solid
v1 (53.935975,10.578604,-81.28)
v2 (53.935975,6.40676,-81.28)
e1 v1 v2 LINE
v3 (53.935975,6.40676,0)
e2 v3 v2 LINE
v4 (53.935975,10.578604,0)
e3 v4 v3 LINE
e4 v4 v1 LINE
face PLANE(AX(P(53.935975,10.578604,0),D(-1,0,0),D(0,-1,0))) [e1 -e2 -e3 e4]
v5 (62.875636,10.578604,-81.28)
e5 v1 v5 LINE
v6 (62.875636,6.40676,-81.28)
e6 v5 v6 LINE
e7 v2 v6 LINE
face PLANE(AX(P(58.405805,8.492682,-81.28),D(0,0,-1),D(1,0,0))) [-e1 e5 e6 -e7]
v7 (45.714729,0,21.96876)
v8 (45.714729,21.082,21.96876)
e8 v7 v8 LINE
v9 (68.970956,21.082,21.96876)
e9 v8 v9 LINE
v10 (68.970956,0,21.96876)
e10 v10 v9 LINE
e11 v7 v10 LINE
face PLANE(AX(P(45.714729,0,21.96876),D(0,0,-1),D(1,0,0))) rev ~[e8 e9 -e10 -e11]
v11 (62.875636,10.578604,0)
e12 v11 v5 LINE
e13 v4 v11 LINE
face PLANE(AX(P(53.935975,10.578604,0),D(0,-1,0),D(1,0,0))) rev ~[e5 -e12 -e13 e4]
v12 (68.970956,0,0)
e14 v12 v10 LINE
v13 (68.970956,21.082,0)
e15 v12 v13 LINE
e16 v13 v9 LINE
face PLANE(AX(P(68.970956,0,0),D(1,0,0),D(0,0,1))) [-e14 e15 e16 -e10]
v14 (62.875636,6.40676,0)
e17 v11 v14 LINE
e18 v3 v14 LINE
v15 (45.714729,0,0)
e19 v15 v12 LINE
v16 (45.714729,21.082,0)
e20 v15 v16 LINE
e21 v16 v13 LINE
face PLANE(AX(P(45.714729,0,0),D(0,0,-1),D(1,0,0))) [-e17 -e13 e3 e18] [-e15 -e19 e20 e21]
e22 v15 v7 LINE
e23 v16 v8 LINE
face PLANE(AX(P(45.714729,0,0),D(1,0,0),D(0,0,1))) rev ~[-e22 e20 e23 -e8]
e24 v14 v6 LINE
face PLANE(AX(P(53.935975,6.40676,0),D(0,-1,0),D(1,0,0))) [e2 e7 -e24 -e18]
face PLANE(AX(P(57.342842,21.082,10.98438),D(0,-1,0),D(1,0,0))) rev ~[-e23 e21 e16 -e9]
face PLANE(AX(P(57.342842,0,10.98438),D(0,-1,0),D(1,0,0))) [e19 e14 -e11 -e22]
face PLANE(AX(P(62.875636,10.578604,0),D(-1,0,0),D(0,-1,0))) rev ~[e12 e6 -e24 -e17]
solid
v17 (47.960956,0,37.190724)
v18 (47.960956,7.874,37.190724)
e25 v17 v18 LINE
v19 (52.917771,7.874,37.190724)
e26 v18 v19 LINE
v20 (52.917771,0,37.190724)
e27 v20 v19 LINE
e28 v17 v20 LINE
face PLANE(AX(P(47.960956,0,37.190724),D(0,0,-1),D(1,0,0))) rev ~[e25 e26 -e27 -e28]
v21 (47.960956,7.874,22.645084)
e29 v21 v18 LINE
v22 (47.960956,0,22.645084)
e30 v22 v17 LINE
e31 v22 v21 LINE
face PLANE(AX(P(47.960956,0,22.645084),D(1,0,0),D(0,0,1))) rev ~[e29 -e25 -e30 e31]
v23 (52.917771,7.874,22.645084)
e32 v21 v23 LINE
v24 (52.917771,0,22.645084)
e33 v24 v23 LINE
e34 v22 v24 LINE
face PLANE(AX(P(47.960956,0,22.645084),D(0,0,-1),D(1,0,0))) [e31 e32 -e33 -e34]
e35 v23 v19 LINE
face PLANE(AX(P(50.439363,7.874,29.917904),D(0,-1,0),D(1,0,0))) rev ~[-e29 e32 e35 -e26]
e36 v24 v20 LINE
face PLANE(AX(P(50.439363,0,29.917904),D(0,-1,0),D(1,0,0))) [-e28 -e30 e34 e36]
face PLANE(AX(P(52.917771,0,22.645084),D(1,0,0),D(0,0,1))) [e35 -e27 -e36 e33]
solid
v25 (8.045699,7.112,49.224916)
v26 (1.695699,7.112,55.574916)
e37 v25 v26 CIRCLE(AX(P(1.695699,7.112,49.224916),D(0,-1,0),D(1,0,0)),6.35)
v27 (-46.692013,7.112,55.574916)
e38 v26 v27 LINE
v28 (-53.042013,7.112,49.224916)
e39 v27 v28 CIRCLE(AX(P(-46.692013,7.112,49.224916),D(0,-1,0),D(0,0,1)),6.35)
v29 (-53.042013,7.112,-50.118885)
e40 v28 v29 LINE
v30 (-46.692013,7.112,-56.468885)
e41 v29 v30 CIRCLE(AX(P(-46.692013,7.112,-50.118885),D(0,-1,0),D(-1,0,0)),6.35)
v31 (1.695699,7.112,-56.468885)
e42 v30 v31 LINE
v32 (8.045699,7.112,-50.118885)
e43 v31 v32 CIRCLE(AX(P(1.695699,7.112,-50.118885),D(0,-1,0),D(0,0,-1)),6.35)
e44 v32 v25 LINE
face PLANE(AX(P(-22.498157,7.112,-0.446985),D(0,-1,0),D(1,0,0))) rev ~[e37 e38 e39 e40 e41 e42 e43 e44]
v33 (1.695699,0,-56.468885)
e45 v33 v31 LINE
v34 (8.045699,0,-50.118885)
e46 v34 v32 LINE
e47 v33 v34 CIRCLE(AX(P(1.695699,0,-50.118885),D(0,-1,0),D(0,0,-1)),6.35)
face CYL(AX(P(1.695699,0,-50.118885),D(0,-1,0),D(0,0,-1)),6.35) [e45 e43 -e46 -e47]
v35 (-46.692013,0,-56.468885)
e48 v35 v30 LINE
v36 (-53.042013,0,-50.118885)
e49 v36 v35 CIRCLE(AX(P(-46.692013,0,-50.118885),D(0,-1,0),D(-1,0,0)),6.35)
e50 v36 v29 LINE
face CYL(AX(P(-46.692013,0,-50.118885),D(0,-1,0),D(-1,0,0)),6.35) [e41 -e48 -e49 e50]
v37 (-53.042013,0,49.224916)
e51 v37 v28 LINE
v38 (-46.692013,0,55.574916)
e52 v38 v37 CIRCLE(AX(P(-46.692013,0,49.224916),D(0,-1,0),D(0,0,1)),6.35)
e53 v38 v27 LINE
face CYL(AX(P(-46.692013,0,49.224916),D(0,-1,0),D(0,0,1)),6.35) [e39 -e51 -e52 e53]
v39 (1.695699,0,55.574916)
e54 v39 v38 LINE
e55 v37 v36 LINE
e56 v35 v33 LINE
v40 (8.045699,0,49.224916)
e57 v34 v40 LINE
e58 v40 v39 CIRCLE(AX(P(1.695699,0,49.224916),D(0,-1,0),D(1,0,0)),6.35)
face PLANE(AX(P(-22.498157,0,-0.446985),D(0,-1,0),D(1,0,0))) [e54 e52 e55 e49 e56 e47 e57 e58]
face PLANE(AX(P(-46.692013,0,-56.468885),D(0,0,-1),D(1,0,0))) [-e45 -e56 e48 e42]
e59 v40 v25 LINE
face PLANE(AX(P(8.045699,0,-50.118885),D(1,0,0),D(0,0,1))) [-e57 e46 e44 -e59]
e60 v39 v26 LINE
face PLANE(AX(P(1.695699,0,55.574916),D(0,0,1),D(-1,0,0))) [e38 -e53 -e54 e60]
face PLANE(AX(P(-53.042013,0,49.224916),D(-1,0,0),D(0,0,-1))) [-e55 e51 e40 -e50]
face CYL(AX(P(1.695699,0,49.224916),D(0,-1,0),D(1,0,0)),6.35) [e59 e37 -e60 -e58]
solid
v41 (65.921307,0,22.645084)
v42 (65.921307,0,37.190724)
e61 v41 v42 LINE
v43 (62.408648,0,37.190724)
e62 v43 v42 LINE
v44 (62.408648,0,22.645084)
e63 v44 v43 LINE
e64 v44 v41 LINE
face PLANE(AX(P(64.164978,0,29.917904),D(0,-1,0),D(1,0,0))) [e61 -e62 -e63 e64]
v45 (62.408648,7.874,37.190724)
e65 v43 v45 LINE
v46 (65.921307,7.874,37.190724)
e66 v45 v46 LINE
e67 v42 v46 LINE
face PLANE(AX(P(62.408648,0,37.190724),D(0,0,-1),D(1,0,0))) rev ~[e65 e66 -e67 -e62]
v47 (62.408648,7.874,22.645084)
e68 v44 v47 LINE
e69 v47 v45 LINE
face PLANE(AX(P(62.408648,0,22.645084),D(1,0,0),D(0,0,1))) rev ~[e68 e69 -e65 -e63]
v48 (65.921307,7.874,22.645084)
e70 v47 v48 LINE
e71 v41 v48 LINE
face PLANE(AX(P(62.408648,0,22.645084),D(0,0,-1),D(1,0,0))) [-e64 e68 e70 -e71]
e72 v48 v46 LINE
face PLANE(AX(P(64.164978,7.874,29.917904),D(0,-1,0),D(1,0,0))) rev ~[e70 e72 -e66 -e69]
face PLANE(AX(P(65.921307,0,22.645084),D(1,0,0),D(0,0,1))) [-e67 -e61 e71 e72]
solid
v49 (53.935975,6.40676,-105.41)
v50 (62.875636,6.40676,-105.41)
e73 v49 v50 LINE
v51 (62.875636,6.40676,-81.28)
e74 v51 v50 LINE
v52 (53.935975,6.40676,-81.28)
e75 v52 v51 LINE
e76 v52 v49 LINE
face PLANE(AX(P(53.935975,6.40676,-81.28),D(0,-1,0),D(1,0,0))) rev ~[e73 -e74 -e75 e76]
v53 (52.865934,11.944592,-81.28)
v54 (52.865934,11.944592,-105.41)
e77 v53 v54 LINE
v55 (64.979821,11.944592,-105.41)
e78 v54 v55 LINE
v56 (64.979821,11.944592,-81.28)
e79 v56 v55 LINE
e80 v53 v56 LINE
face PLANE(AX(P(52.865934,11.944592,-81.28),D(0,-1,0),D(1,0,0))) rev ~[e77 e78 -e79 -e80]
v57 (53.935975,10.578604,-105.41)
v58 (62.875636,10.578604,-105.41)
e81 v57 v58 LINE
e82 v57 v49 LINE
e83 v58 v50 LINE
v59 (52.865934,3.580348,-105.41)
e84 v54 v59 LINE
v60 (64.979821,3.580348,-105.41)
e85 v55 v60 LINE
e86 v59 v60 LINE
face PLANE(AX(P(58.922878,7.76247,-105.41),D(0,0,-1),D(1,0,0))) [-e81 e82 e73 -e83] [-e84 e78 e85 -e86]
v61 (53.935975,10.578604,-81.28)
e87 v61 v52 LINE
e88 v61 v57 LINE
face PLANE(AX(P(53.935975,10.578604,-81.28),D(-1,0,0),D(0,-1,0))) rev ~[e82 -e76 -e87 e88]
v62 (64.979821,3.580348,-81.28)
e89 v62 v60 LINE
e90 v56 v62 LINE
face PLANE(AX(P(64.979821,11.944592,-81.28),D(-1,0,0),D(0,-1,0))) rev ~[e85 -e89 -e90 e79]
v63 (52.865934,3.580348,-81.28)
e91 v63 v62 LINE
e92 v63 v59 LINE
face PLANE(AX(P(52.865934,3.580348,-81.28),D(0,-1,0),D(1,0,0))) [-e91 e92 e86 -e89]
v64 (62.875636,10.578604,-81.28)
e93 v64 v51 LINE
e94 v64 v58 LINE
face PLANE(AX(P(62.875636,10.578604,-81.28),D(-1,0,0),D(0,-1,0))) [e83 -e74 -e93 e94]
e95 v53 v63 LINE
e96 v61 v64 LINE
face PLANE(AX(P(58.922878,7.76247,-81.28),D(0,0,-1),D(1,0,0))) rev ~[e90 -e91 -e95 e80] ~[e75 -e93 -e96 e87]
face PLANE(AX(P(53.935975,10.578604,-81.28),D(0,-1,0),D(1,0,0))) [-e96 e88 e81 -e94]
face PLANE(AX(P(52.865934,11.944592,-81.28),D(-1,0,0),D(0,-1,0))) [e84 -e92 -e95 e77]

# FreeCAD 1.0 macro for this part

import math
import FreeCAD as App
import Part
import Sketcher
from FreeCAD import Vector
Q = App.Units.Quantity


def add_polygon(sketch, points):
    """Adds a closed chain of lines whose ends are joined by coincident constraints."""
    first, n = sketch.GeometryCount, len(points)
    for a, b in zip(points, points[1:] + points[:1]):
        sketch.addGeometry(Part.LineSegment(App.Vector(*a, 0), App.Vector(*b, 0)), False)
    for i in range(n):
        sketch.addConstraint(Sketcher.Constraint("Coincident", first + i, 2, first + (i + 1) % n, 1))

doc = App.newDocument("Part")
body = doc.addObject("PartDesign::Body", "Body")

# Sketch on XZ plane
sketch1 = doc.addObject("Sketcher::SketchObject", "Sketch")
body.addObject(sketch1)
sketch1.AttachmentSupport = (doc.XZ_Plane, [""])
sketch1.MapMode = "FlatFace"
sketch1.addGeometry([
    Part.ArcOfCircle(Part.Circle(Vector(-47, 49, 0), Vector(0, 0, 1), 6), math.radians(90), math.radians(180)),  # 0
    Part.LineSegment(Vector(-53, 49, 0), Vector(-53, -50, 0)),  # 1
    Part.ArcOfCircle(Part.Circle(Vector(-47, -50, 0), Vector(0, 0, 1), 6), math.radians(180), math.radians(270)),  # 2
    Part.LineSegment(Vector(-47, -56, 0), Vector(2, -56, 0)),  # 3
    Part.ArcOfCircle(Part.Circle(Vector(2, -50, 0), Vector(0, 0, 1), 6), math.radians(-90), math.radians(0)),  # 4
    Part.LineSegment(Vector(8, -50, 0), Vector(8, 49, 0)),  # 5
    Part.ArcOfCircle(Part.Circle(Vector(2, 49, 0), Vector(0, 0, 1), 6), math.radians(0), math.radians(90)),  # 6
    Part.LineSegment(Vector(2, 56, 0), Vector(-47, 56, 0)),  # 7
], False)
sketch1.addConstraint([
    Sketcher.Constraint("Tangent", 0, 2, 1, 1),
    Sketcher.Constraint("Tangent", 1, 2, 2, 1),
    Sketcher.Constraint("Tangent", 2, 2, 3, 1),
    Sketcher.Constraint("Tangent", 3, 2, 4, 1),
    Sketcher.Constraint("Tangent", 4, 2, 5, 1),
    Sketcher.Constraint("Tangent", 5, 2, 6, 1),
    Sketcher.Constraint("Tangent", 6, 2, 7, 1),
    Sketcher.Constraint("Tangent", 7, 2, 0, 1),
    Sketcher.Constraint("Vertical", 1),
    Sketcher.Constraint("Horizontal", 3),
    Sketcher.Constraint("Vertical", 5),
    Sketcher.Constraint("Horizontal", 7),
    Sketcher.Constraint("Equal", 0, 2),
    Sketcher.Constraint("Equal", 2, 4),
    Sketcher.Constraint("Equal", 4, 6),
    Sketcher.Constraint("Radius", 0, Q("0.25 in")),
    Sketcher.Constraint("DistanceY", 1, 2, 1, 1, 99.343802),
    Sketcher.Constraint("DistanceX", 3, 1, 3, 2, 48.387712),
    Sketcher.Constraint("DistanceX", -1, 1, 4, 3, 1.695699),
    Sketcher.Constraint("DistanceY", -1, 1, 0, 3, 49.224916),
])
pad1 = doc.addObject("PartDesign::Pad", "Pad")
body.addObject(pad1)
pad1.Profile = sketch1
pad1.Length = Q("0.28 in")
pad1.Reversed = True
body2 = doc.addObject("PartDesign::Body", "Body001")

# Sketch on XZ plane
sketch2 = doc.addObject("Sketcher::SketchObject", "Sketch001")
body2.addObject(sketch2)
sketch2.AttachmentSupport = (doc.getObject("XZ_Plane001"), [""])
sketch2.MapMode = "FlatFace"
add_polygon(sketch2, [(46, 22), (46, 0), (69, 0), (69, 22)])  # lines 0-3
sketch2.addConstraint([
    Sketcher.Constraint("Vertical", 0),
    Sketcher.Constraint("Horizontal", 1),
    Sketcher.Constraint("Vertical", 2),
    Sketcher.Constraint("Horizontal", 3),
    Sketcher.Constraint("PointOnObject", 0, 2, -1),
    Sketcher.Constraint("DistanceY", 0, 2, 0, 1, 21.96876),
    Sketcher.Constraint("DistanceX", 1, 1, 1, 2, 23.256227),
    Sketcher.Constraint("DistanceX", -1, 1, 0, 2, 45.714729),
])
pad2 = doc.addObject("PartDesign::Pad", "Pad001")
body2.addObject(pad2)
pad2.Profile = sketch2
pad2.Length = Q("0.83 in")
pad2.Reversed = True

# Sketch on XY plane
sketch3 = doc.addObject("Sketcher::SketchObject", "Sketch002")
body2.addObject(sketch3)
sketch3.AttachmentSupport = (doc.getObject("XY_Plane001"), [""])
sketch3.MapMode = "FlatFace"
add_polygon(sketch3, [(53.9, 6.4), (53.9, 10.6), (62.9, 10.6), (62.9, 6.4)])  # lines 0-3
sketch3.addConstraint([
    Sketcher.Constraint("Vertical", 0),
    Sketcher.Constraint("Horizontal", 1),
    Sketcher.Constraint("Vertical", 2),
    Sketcher.Constraint("Horizontal", 3),
    Sketcher.Constraint("DistanceX", 1, 1, 1, 2, 8.939661),
    Sketcher.Constraint("DistanceY", 0, 1, 0, 2, 4.171845),
    Sketcher.Constraint("DistanceY", -1, 1, 2, 2, 6.40676),
    Sketcher.Constraint("DistanceX", -1, 1, 0, 2, 53.935975),
])
pad3 = doc.addObject("PartDesign::Pad", "Pad002")
body2.addObject(pad3)
pad3.Profile = sketch3
pad3.Length = Q("3.2 in")
pad3.Reversed = True
body3 = doc.addObject("PartDesign::Body", "Body002")

# Sketch on XZ plane
sketch4 = doc.addObject("Sketcher::SketchObject", "Sketch003")
body3.addObject(sketch4)
sketch4.AttachmentSupport = (doc.getObject("XZ_Plane002"), [""])
sketch4.MapMode = "FlatFace"
add_polygon(sketch4, [(48, 37.2), (48, 22.6), (52.9, 22.6), (52.9, 37.2)])  # lines 0-3
sketch4.addConstraint([
    Sketcher.Constraint("Vertical", 0),
    Sketcher.Constraint("Horizontal", 1),
    Sketcher.Constraint("Vertical", 2),
    Sketcher.Constraint("Horizontal", 3),
    Sketcher.Constraint("DistanceY", 0, 2, 0, 1, 14.54564),
    Sketcher.Constraint("DistanceX", 1, 1, 1, 2, 4.956815),
    Sketcher.Constraint("DistanceX", -1, 1, 1, 2, 52.917771),
    Sketcher.Constraint("DistanceY", -1, 1, 0, 2, 22.645084),
])
pad4 = doc.addObject("PartDesign::Pad", "Pad003")
body3.addObject(pad4)
pad4.Profile = sketch4
pad4.Length = Q("0.31 in")
pad4.Reversed = True
body4 = doc.addObject("PartDesign::Body", "Body003")

# Sketch on XZ plane
sketch5 = doc.addObject("Sketcher::SketchObject", "Sketch004")
body4.addObject(sketch5)
sketch5.AttachmentSupport = (doc.getObject("XZ_Plane003"), [""])
sketch5.MapMode = "FlatFace"
add_polygon(sketch5, [(62.4, 37.2), (62.4, 22.6), (65.9, 22.6), (65.9, 37.2)])  # lines 0-3
sketch5.addConstraint([
    Sketcher.Constraint("Vertical", 0),
    Sketcher.Constraint("Horizontal", 1),
    Sketcher.Constraint("Vertical", 2),
    Sketcher.Constraint("Horizontal", 3),
    Sketcher.Constraint("DistanceX", 1, 1, 1, 2, 3.512658),
    Sketcher.Constraint("DistanceY", 0, 2, 0, 1, 14.54564),
    Sketcher.Constraint("DistanceX", -1, 1, 0, 2, 62.408648),
    Sketcher.Constraint("DistanceY", -1, 1, 0, 2, 22.645084),
])
pad5 = doc.addObject("PartDesign::Pad", "Pad004")
body4.addObject(pad5)
pad5.Profile = sketch5
pad5.Length = Q("0.31 in")
pad5.Reversed = True
body5 = doc.addObject("PartDesign::Body", "Body004")

# Sketch on XY plane
sketch6 = doc.addObject("Sketcher::SketchObject", "Sketch005")
body5.addObject(sketch6)
sketch6.AttachmentSupport = (doc.getObject("XY_Plane004"), [""])
sketch6.MapMode = "FlatFace"
sketch6.AttachmentOffset = App.Placement(Vector(0, 0, -3.2 * 25.4), App.Rotation())
add_polygon(sketch6, [(52.9, 3.6), (52.9, 11.9), (65, 11.9), (65, 3.6)])  # lines 0-3
add_polygon(sketch6, [(62.9, 10.6), (53.9, 10.6), (53.9, 6.4), (62.9, 6.4)])  # lines 4-7
sketch6.addConstraint([
    Sketcher.Constraint("Vertical", 0),
    Sketcher.Constraint("Horizontal", 1),
    Sketcher.Constraint("Vertical", 2),
    Sketcher.Constraint("Horizontal", 3),
    Sketcher.Constraint("Horizontal", 4),
    Sketcher.Constraint("Vertical", 5),
    Sketcher.Constraint("Horizontal", 6),
    Sketcher.Constraint("Vertical", 7),
    Sketcher.Constraint("DistanceX", 4, 2, 4, 1, 8.939661),
    Sketcher.Constraint("DistanceX", 1, 1, 1, 2, 12.113888),
    Sketcher.Constraint("DistanceY", 0, 1, 0, 2, 8.364244),
    Sketcher.Constraint("DistanceY", 5, 2, 5, 1, 4.171845),
    Sketcher.Constraint("DistanceY", -1, 1, 0, 2, 11.944592),
    Sketcher.Constraint("DistanceX", -1, 1, 1, 2, 64.979821),
    Sketcher.Constraint("DistanceY", -1, 1, 5, 2, 6.40676),
    Sketcher.Constraint("DistanceX", 0, 2, 4, 2, 1.070041),
])
pad6 = doc.addObject("PartDesign::Pad", "Pad005")
body5.addObject(pad6)
pad6.Profile = sketch6
pad6.Length = Q("0.95 in")
pad6.Reversed = True

doc.recompute()
